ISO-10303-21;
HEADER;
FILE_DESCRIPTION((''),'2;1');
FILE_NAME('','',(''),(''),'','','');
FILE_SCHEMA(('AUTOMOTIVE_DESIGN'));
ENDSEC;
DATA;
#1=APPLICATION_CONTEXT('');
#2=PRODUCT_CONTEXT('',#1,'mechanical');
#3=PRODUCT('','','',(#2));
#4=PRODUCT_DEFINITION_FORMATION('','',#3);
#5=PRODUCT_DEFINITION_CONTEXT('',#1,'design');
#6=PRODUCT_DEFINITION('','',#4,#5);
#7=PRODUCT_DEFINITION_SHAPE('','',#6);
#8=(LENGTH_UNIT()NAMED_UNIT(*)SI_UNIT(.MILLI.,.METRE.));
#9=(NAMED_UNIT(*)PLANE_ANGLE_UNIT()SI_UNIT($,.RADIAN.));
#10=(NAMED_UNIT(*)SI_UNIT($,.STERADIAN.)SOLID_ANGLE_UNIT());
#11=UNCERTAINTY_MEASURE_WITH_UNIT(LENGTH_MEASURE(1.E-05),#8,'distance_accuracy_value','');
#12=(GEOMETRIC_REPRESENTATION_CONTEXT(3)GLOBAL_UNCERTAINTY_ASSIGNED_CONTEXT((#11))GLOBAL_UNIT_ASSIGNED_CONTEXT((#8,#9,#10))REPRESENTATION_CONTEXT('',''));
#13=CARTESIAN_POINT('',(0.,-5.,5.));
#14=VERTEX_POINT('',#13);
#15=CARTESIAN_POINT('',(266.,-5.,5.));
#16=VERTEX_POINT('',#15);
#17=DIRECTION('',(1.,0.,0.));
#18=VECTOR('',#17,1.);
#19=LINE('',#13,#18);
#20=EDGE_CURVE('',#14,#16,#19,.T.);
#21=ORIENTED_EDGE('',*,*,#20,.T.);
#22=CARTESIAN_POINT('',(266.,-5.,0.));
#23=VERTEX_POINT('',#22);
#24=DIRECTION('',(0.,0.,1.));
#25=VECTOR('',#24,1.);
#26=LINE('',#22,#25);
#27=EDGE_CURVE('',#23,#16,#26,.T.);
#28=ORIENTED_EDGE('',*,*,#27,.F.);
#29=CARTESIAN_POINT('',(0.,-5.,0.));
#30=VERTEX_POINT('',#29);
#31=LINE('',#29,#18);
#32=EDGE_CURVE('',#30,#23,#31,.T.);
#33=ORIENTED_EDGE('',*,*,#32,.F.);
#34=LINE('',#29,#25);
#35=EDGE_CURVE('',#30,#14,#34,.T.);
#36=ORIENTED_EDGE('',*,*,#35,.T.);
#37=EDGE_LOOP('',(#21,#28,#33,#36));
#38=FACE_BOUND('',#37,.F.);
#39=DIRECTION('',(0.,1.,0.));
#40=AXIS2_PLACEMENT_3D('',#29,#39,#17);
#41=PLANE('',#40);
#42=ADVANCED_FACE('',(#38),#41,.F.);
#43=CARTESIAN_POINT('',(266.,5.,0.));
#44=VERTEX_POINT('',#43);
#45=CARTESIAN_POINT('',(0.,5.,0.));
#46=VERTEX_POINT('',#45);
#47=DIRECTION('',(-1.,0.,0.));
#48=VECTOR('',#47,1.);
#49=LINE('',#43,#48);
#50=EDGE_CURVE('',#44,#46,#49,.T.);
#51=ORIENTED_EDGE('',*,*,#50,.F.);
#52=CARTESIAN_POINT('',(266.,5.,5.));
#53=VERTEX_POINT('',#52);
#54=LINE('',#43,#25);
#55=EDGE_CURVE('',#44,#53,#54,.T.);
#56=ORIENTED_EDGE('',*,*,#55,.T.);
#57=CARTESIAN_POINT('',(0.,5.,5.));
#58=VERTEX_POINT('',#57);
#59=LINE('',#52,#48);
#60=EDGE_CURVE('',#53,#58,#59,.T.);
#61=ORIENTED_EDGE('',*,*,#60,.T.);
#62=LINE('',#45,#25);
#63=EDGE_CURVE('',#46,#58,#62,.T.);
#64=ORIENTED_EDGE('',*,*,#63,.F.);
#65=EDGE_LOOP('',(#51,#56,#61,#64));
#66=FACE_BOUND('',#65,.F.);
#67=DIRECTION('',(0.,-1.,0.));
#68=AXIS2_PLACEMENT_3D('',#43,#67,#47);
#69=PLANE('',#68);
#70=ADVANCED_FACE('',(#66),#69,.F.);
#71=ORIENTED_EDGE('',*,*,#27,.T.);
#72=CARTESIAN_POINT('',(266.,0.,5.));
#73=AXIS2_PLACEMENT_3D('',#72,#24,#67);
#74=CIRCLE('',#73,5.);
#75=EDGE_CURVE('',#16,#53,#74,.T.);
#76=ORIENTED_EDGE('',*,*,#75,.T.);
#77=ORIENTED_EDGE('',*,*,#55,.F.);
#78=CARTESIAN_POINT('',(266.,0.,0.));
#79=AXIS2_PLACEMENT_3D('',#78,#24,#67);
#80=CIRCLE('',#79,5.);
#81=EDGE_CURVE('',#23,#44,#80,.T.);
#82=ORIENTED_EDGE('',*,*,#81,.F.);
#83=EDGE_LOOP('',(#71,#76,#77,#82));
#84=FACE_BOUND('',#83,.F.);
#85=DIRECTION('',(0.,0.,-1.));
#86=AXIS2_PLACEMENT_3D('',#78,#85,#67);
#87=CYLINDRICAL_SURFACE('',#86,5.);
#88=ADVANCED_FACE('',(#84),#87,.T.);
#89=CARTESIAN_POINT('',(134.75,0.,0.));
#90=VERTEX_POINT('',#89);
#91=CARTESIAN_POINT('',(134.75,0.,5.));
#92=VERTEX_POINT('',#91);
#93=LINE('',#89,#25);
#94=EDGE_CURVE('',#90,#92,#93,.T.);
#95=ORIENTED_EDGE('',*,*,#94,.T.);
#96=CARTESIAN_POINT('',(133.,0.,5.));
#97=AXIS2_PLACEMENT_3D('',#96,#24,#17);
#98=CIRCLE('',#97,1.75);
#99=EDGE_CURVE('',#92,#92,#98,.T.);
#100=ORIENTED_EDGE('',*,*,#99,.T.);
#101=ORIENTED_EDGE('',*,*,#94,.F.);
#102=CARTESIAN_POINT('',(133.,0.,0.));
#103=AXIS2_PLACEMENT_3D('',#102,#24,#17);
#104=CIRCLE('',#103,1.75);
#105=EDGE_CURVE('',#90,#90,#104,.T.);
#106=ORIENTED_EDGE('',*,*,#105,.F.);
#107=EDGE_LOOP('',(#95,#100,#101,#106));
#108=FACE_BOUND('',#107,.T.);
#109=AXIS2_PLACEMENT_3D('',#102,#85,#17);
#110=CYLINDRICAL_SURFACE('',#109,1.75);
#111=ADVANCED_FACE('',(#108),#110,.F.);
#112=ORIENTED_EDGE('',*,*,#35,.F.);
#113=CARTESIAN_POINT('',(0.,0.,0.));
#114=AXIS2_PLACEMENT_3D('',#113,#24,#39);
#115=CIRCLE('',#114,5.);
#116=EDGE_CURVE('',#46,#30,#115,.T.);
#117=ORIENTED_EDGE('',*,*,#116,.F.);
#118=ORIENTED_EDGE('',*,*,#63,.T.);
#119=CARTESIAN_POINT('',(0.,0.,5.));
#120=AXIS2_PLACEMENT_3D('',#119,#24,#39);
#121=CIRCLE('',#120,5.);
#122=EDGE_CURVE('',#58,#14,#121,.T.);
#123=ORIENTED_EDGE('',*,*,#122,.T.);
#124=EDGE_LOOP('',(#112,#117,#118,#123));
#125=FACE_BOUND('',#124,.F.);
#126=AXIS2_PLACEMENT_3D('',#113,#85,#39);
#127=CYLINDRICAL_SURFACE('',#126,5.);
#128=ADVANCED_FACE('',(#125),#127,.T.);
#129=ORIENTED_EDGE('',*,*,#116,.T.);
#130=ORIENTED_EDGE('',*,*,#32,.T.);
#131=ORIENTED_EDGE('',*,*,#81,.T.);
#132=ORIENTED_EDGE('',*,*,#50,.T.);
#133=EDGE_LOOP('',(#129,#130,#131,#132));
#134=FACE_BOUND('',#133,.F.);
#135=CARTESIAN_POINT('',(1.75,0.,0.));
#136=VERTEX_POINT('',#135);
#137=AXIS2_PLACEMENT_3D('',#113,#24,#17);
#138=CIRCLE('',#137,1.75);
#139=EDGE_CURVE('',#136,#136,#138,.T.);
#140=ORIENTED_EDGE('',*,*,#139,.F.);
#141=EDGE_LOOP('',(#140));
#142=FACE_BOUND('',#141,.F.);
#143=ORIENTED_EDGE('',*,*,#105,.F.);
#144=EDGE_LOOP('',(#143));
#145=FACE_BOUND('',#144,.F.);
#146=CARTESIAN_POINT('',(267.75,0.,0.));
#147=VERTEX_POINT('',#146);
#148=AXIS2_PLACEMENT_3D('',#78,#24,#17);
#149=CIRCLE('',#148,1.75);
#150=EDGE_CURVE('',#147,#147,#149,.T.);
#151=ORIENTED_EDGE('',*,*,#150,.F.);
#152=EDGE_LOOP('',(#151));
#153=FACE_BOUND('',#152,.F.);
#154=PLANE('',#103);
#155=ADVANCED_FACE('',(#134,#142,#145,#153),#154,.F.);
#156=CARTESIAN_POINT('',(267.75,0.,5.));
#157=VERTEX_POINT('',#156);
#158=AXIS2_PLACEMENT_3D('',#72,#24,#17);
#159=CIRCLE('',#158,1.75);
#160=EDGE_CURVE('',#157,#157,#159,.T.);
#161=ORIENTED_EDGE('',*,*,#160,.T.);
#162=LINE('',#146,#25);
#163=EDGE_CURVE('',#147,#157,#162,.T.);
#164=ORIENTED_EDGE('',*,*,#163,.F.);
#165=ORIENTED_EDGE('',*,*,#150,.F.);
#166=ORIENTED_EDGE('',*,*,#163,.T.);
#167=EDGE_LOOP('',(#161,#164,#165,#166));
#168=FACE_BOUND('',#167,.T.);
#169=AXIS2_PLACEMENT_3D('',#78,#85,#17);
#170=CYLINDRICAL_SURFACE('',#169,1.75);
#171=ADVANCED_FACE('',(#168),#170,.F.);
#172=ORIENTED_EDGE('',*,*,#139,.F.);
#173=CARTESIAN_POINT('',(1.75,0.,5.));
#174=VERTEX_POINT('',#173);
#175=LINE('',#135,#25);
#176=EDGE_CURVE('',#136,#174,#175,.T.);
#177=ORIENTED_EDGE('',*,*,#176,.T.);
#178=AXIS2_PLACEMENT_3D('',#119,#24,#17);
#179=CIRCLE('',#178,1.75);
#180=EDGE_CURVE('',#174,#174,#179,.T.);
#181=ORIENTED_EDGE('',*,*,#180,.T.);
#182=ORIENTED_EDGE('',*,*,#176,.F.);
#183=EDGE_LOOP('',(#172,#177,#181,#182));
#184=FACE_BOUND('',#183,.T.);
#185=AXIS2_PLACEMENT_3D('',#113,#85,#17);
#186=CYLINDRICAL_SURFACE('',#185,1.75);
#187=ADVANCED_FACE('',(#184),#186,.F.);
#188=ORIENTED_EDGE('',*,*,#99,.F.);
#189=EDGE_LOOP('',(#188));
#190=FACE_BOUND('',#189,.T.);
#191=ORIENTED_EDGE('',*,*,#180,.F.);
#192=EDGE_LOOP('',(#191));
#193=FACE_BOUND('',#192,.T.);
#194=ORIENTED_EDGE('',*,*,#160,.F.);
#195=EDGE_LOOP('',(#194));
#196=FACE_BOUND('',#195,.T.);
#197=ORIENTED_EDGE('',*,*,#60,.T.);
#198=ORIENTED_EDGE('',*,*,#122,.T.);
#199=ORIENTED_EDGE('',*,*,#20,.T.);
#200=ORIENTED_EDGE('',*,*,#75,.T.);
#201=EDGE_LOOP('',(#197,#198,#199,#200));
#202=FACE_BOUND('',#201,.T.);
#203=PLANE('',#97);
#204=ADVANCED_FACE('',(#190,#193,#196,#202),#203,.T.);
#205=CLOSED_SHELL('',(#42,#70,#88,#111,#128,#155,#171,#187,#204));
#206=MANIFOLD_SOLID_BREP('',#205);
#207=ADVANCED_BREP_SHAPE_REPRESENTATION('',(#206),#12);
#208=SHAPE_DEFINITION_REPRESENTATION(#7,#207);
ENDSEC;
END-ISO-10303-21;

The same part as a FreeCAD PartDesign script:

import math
import FreeCAD as App
import Part
import Sketcher
from FreeCAD import Vector

doc = App.newDocument("Part")
body = doc.addObject("PartDesign::Body", "Body")

# Sketch on XY plane
sketch1 = body.newObject("Sketcher::SketchObject", "Sketch")
sketch1.AttachmentSupport = (doc.getObject("XY_Plane"), [""])
sketch1.MapMode = "FlatFace"
sketch1.addGeometry([
    Part.ArcOfCircle(Part.Circle(Vector(0, 0, 0), Vector(0, 0, 1), 5), math.radians(90), math.radians(270)),  # 0
    Part.LineSegment(Vector(0, -5, 0), Vector(266, -5, 0)),  # 1
    Part.ArcOfCircle(Part.Circle(Vector(266, 0, 0), Vector(0, 0, 1), 5), math.radians(-90), math.radians(90)),  # 2
    Part.LineSegment(Vector(266, 5, 0), Vector(0, 5, 0)),  # 3
    Part.Circle(Vector(0, 0, 0), Vector(0, 0, 1), 1.75),  # 4
    Part.Circle(Vector(133, 0, 0), Vector(0, 0, 1), 1.75),  # 5
    Part.Circle(Vector(266, 0, 0), Vector(0, 0, 1), 1.75),  # 6
], False)
sketch1.addConstraint([
    Sketcher.Constraint("Tangent", 0, 2, 1, 1),
    Sketcher.Constraint("Tangent", 1, 2, 2, 1),
    Sketcher.Constraint("Tangent", 2, 2, 3, 1),
    Sketcher.Constraint("Tangent", 3, 2, 0, 1),
    Sketcher.Constraint("Horizontal", 1),
    Sketcher.Constraint("Horizontal", 3),
    Sketcher.Constraint("Coincident", 0, 3, -1, 1),
    Sketcher.Constraint("Coincident", 4, 3, -1, 1),
    Sketcher.Constraint("Coincident", 6, 3, 2, 3),
    Sketcher.Constraint("Equal", 4, 5),
    Sketcher.Constraint("Equal", 5, 6),
    Sketcher.Constraint("PointOnObject", 5, 3, -1),
    Sketcher.Constraint("Radius", 0, 5.0),
    Sketcher.Constraint("Diameter", 4, 3.5),
    Sketcher.Constraint("DistanceX", 1, 1, 1, 2, 266.0),
    Sketcher.Constraint("DistanceX", -1, 1, 5, 3, 133.0),
])
pad1 = body.newObject("PartDesign::Pad", "Pad")
pad1.Profile = sketch1
pad1.Length = 5

doc.recompute()
